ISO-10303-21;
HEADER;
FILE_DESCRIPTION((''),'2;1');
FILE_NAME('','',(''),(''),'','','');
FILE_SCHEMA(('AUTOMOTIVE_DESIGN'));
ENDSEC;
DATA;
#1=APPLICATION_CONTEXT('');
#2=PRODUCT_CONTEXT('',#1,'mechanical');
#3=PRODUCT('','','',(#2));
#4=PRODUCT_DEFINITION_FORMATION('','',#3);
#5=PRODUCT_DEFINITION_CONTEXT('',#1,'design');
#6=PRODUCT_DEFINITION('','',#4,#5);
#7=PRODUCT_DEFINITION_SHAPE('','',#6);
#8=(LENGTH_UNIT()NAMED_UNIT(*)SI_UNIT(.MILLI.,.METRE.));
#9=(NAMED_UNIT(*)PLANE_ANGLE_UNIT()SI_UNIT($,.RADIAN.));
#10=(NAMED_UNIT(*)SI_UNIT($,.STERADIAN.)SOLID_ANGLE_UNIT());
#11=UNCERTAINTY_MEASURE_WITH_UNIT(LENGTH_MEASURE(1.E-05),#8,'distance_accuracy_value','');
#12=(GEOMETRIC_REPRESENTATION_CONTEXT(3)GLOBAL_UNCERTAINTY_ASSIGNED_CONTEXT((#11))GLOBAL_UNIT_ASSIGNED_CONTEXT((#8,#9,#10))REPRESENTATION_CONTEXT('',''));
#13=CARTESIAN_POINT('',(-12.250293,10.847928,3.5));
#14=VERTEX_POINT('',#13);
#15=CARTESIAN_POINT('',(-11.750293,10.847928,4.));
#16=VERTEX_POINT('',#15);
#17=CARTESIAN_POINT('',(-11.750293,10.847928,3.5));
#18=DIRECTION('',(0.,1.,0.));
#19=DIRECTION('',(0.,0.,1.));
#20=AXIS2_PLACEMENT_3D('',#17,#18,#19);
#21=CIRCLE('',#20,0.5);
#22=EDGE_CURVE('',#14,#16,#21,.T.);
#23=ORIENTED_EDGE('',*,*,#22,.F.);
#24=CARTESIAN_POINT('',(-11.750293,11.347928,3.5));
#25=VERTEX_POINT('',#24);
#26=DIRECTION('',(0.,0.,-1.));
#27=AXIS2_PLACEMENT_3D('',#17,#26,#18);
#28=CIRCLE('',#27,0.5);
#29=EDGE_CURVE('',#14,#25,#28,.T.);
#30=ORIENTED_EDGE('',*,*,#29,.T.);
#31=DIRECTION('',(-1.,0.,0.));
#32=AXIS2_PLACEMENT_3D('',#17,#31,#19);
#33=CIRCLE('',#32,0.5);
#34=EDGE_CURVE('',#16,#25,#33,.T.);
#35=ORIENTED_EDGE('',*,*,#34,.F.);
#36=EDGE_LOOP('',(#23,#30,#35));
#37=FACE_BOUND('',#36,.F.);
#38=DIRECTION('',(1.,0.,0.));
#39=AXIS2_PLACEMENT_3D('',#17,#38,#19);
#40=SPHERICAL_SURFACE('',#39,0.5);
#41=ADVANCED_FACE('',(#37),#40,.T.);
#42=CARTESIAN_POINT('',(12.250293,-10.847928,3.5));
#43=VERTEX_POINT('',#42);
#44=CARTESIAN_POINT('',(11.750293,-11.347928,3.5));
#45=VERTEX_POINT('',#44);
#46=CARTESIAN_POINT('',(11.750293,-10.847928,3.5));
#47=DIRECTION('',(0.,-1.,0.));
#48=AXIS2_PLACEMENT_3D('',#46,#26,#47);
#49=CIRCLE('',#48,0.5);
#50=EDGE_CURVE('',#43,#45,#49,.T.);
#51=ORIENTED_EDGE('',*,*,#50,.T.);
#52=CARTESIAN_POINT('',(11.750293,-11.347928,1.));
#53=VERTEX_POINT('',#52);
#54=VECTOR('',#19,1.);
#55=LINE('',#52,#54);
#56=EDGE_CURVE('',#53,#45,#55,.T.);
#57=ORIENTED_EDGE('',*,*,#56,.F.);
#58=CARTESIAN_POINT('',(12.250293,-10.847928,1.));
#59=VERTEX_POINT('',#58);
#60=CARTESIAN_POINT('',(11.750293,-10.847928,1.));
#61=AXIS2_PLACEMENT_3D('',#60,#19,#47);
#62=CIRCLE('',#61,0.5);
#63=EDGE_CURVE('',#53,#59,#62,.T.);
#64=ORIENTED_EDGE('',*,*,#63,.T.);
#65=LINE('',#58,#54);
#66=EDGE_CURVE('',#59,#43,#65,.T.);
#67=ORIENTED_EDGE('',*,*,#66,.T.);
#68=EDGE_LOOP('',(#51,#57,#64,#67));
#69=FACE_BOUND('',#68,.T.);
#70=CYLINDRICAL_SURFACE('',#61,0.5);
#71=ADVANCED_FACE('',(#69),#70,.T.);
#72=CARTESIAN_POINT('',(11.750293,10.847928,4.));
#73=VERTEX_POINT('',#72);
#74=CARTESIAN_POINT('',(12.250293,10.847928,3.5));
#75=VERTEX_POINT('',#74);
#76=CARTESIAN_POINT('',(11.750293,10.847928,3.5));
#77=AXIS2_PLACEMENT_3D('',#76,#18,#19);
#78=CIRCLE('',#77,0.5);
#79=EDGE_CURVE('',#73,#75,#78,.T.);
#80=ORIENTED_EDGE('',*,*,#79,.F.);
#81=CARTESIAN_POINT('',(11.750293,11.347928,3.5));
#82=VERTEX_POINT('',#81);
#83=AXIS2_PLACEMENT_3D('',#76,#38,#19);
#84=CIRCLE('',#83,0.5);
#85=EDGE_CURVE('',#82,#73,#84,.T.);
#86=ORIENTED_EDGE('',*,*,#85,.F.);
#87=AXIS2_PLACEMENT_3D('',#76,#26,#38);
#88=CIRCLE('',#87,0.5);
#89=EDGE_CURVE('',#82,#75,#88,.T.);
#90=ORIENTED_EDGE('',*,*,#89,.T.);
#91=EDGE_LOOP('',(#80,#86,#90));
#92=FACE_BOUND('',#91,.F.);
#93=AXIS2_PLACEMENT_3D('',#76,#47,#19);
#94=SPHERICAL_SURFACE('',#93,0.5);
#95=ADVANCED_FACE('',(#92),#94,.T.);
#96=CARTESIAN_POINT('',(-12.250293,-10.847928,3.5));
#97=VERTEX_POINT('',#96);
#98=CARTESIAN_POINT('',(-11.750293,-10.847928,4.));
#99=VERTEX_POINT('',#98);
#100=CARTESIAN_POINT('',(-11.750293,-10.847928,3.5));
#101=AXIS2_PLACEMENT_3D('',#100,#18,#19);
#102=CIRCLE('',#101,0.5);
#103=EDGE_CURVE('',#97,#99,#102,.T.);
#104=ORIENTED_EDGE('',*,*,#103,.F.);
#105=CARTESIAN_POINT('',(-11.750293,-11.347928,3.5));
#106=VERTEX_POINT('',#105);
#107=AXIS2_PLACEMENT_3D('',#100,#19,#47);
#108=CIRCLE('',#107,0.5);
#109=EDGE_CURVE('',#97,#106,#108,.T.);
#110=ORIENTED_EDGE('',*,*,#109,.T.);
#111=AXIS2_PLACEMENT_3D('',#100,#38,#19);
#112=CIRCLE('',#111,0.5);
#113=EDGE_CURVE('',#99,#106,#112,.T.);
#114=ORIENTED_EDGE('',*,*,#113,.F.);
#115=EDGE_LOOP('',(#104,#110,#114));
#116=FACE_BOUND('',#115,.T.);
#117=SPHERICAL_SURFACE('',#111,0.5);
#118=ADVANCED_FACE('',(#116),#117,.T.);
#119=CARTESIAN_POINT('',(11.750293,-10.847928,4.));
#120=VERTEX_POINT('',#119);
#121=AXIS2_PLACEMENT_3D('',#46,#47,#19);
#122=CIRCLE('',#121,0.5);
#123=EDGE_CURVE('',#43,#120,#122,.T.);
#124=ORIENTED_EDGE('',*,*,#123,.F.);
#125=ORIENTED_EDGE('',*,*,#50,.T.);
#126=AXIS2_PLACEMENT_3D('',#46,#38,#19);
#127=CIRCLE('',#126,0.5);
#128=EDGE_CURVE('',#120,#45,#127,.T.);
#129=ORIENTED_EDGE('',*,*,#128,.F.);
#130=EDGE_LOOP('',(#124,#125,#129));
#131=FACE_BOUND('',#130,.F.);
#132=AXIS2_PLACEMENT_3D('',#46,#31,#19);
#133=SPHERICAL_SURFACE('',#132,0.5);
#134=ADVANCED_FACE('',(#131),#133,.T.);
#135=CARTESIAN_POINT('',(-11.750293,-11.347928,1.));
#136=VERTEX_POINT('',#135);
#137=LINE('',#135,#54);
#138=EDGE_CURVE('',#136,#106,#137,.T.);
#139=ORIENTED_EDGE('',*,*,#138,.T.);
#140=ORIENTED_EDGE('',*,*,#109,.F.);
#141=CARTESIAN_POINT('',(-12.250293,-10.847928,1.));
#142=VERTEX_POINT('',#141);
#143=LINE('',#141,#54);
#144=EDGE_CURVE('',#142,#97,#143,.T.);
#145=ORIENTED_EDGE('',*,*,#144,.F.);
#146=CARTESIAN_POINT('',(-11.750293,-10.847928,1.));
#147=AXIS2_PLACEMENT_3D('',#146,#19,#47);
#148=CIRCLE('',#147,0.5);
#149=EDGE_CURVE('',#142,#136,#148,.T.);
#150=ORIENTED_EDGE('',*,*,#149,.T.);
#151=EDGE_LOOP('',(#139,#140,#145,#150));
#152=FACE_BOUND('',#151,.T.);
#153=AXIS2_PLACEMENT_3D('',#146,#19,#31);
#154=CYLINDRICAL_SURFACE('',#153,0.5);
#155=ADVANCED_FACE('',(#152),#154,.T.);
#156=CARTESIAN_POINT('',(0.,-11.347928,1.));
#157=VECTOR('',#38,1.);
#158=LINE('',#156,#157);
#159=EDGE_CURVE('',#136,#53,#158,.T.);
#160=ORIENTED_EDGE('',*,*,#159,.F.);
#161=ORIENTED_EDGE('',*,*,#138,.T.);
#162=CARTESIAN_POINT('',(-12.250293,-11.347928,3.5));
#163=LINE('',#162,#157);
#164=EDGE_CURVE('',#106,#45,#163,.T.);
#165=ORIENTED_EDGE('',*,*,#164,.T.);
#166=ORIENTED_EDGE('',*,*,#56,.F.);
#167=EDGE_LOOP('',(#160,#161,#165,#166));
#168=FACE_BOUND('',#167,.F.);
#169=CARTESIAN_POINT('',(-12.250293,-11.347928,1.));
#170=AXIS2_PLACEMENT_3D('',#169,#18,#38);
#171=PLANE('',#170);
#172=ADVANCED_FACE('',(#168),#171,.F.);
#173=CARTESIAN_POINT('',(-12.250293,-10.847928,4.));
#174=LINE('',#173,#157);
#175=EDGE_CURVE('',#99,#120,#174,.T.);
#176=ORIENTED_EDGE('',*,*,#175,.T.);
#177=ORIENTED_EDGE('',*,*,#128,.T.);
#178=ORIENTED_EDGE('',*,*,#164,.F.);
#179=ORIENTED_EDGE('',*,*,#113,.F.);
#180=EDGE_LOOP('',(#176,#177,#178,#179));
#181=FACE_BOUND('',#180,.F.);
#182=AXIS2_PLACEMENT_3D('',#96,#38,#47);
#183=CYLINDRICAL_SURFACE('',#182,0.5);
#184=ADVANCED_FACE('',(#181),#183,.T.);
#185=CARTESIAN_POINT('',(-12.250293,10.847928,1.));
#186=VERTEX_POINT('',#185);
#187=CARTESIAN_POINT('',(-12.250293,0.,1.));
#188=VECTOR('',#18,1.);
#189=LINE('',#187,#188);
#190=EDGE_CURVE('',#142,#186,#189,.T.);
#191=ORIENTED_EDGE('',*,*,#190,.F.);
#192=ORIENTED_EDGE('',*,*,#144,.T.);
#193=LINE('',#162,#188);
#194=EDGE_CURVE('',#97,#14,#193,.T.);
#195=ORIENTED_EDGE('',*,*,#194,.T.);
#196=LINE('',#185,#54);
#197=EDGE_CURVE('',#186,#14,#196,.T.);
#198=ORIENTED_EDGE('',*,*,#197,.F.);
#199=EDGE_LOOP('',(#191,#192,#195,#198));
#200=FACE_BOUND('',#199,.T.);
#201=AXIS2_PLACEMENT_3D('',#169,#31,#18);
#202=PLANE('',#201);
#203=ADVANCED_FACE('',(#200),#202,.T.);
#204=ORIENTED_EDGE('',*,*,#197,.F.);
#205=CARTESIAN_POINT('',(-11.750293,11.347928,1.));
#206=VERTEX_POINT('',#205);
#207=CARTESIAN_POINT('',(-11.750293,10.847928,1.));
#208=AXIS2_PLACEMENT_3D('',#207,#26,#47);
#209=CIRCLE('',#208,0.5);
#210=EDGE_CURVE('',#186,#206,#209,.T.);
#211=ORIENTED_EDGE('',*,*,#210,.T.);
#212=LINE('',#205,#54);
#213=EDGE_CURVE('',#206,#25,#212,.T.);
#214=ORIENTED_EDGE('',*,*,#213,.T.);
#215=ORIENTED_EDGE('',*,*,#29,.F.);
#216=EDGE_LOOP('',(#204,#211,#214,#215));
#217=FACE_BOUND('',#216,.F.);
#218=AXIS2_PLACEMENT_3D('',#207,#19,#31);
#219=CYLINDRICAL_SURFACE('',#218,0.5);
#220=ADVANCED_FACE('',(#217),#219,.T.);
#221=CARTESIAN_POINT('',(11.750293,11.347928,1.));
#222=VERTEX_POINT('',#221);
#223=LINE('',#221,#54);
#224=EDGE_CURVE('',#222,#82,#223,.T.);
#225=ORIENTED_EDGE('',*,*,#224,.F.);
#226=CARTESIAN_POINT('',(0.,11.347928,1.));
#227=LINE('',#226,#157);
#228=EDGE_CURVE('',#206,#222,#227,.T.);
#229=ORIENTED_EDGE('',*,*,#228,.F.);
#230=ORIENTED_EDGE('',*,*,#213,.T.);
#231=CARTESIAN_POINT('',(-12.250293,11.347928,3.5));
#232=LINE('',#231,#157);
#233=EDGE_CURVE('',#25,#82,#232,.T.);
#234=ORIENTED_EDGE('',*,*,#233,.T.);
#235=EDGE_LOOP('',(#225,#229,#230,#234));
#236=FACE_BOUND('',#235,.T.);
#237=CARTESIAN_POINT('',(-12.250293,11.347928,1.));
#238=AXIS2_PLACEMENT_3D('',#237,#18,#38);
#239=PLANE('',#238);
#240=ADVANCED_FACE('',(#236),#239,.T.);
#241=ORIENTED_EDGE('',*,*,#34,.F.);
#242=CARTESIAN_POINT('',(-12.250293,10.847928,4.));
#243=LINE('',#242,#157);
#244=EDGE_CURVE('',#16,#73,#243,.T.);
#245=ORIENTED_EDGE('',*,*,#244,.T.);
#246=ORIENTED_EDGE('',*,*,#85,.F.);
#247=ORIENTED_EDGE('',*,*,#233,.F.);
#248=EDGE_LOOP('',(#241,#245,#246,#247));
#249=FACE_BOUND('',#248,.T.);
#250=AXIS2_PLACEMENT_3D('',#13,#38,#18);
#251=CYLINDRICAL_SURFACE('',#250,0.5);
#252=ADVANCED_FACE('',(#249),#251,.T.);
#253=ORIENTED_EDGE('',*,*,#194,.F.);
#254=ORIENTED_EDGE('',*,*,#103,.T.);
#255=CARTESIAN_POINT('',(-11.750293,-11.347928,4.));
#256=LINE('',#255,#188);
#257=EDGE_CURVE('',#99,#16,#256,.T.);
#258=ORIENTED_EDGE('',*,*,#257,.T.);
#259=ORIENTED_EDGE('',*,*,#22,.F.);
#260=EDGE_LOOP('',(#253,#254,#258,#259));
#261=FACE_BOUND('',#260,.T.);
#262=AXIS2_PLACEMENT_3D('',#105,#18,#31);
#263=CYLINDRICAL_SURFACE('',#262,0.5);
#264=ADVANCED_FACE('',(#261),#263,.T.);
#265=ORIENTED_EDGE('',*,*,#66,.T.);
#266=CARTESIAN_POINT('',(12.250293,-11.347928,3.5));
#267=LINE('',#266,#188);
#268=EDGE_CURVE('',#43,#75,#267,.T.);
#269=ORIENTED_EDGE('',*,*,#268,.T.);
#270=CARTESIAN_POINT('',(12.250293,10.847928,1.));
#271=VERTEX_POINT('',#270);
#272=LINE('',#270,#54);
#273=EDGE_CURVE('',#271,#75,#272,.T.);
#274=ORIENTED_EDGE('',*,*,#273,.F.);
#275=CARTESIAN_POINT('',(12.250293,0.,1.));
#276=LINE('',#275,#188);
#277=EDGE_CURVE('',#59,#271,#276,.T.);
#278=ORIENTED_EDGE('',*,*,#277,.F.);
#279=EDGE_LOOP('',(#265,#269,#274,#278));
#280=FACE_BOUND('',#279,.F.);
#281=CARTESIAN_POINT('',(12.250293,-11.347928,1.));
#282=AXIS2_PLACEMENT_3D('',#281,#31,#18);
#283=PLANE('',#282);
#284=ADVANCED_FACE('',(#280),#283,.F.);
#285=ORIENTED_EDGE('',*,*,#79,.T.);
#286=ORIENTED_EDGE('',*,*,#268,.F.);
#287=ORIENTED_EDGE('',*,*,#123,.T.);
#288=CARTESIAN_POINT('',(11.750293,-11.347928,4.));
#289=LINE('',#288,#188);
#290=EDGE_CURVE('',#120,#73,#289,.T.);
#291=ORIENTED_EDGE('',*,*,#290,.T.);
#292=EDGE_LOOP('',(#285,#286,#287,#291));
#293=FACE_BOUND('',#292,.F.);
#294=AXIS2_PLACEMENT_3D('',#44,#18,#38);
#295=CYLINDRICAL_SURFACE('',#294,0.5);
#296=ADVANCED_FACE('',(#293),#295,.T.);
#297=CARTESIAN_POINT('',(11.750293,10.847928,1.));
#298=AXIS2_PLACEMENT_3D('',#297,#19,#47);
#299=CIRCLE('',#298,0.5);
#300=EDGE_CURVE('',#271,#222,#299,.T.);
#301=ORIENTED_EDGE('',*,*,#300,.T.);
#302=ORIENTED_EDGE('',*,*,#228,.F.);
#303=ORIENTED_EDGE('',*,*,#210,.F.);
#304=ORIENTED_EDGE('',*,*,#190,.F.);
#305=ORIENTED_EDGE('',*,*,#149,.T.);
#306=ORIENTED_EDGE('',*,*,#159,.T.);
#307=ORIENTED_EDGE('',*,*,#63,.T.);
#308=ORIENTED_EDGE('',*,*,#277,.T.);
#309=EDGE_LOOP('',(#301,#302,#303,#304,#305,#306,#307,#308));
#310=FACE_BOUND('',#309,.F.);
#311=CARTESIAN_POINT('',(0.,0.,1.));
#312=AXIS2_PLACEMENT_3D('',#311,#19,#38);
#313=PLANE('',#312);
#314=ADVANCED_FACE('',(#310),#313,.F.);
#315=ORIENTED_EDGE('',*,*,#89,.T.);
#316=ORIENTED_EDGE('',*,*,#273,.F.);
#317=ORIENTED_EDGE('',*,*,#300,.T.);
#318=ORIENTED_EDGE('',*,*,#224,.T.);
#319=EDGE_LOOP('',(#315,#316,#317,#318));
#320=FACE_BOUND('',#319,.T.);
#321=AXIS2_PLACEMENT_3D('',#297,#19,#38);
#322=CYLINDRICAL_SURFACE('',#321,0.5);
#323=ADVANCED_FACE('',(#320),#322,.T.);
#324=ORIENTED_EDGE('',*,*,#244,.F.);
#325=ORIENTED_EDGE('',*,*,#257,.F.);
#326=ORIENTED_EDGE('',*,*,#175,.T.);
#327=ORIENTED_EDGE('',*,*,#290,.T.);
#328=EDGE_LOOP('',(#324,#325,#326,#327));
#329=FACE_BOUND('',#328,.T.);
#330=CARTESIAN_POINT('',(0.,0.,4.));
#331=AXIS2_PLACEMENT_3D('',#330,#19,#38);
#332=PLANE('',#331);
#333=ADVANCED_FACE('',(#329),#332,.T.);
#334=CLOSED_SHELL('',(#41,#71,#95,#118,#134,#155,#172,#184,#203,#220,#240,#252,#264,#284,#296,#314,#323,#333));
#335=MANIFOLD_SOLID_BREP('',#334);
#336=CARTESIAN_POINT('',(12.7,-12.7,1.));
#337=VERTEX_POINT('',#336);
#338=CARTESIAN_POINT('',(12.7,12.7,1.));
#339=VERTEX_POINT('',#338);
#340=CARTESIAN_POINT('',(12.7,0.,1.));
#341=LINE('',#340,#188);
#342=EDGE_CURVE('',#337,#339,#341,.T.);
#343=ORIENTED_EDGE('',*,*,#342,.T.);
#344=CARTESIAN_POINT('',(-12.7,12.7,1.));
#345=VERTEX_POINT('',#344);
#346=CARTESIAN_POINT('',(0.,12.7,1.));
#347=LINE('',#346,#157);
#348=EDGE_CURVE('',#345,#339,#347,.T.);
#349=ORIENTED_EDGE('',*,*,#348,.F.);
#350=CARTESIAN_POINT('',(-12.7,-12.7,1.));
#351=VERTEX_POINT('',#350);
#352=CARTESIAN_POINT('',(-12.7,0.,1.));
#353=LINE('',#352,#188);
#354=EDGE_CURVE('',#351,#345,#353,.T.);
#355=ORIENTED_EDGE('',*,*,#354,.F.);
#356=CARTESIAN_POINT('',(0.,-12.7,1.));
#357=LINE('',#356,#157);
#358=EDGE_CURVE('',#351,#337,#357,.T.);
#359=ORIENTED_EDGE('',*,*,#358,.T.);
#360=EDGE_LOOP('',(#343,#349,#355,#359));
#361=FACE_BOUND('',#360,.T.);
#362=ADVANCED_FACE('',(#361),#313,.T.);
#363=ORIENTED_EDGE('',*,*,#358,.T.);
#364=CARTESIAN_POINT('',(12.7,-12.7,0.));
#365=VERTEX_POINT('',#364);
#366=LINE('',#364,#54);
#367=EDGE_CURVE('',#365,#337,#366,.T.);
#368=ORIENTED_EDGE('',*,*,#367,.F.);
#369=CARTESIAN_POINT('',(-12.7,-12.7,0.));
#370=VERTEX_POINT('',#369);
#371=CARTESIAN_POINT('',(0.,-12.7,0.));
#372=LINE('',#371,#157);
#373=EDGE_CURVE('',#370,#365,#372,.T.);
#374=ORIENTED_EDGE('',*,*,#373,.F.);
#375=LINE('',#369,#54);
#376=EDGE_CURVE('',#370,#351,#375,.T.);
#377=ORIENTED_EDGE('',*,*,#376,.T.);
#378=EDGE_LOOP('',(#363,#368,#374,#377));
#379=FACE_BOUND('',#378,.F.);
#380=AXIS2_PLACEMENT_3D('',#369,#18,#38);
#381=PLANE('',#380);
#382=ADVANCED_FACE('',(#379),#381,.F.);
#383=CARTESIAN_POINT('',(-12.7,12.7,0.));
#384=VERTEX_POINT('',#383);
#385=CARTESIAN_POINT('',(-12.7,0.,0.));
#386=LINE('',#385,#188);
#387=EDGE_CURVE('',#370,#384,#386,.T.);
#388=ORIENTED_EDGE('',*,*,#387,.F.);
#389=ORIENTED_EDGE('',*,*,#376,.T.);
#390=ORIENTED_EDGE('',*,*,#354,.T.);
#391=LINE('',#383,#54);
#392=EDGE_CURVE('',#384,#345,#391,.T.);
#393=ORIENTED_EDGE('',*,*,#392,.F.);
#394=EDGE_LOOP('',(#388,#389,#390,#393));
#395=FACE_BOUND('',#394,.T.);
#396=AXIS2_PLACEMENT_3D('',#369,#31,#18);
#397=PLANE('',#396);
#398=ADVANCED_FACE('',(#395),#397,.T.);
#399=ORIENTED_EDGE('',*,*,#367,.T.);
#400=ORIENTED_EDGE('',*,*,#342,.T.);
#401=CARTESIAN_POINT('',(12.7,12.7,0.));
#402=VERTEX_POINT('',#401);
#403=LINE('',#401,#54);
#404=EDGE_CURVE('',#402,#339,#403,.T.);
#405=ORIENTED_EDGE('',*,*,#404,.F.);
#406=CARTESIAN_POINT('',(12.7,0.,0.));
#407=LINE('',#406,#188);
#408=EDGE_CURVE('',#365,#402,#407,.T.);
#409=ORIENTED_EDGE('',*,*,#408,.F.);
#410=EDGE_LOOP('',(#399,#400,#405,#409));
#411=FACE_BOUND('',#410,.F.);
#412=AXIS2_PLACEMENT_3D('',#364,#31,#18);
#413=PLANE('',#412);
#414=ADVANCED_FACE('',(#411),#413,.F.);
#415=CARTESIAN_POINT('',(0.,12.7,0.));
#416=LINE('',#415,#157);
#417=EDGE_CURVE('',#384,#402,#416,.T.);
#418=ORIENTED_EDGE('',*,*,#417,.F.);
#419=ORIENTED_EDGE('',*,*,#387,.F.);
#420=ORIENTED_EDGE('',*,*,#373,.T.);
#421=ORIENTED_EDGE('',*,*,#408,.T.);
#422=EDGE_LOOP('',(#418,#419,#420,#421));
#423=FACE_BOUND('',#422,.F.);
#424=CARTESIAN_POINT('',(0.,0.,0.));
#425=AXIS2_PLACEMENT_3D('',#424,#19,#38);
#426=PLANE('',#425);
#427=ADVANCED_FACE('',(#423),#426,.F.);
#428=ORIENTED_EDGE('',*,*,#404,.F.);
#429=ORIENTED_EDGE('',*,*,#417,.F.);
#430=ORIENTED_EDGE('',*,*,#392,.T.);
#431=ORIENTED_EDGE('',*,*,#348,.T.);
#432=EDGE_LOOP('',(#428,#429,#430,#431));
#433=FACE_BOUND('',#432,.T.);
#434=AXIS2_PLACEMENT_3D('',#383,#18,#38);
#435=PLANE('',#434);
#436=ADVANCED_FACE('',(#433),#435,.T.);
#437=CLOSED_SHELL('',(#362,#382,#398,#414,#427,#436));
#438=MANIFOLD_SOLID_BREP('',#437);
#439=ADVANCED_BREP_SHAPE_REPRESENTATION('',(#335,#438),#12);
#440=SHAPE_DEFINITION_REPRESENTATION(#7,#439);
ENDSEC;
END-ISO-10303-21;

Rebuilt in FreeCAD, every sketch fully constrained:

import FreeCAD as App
import Part
import Sketcher


def edges_at(feature, points):
    """Names of the edges that pass closest to the given points."""
    edges = feature.Shape.Edges
    near = lambda p: min(range(len(edges)), key=lambda i: edges[i].distToShape(Part.Vertex(*p))[0])
    return sorted({f"Edge{near(p) + 1}" for p in points})

doc = App.newDocument("Part")
body = doc.addObject("PartDesign::Body", "Body")

sketch1 = body.newObject("Sketcher::SketchObject", "Sketch")
sketch1.AttachmentSupport = (doc.getObject("XY_Plane"), [""])
sketch1.MapMode = "FlatFace"
sketch1.addGeometry([
    Part.LineSegment(App.Vector(-13, 13, 0), App.Vector(-13, -13, 0)),
    Part.LineSegment(App.Vector(-13, -13, 0), App.Vector(13, -13, 0)),
    Part.LineSegment(App.Vector(13, -13, 0), App.Vector(13, 13, 0)),
    Part.LineSegment(App.Vector(13, 13, 0), App.Vector(-13, 13, 0)),
], False)
sketch1.addConstraint([
    Sketcher.Constraint("Coincident", 0, 2, 1, 1),
    Sketcher.Constraint("Coincident", 1, 2, 2, 1),
    Sketcher.Constraint("Coincident", 2, 2, 3, 1),
    Sketcher.Constraint("Coincident", 3, 2, 0, 1),
    Sketcher.Constraint("Vertical", 0),
    Sketcher.Constraint("Horizontal", 1),
    Sketcher.Constraint("Vertical", 2),
    Sketcher.Constraint("Horizontal", 3),
    Sketcher.Constraint("Symmetric", 0, 2, 2, 2, -1, 1),
    Sketcher.Constraint("Equal", 3, 0),
    Sketcher.Constraint("DistanceX", 1, 1, 1, 2, 25.4),
])
pad1 = body.newObject("PartDesign::Pad", "Pad")
pad1.Profile = sketch1
pad1.Length = 1
body2 = doc.addObject("PartDesign::Body", "Body001")

sketch2 = body2.newObject("Sketcher::SketchObject", "Sketch001")
sketch2.AttachmentSupport = (doc.getObject("XY_Plane001"), [""])
sketch2.MapMode = "FlatFace"
sketch2.AttachmentOffset = App.Placement(App.Vector(0, 0, 1), App.Rotation())
sketch2.addGeometry([
    Part.LineSegment(App.Vector(-12, 11, 0), App.Vector(-12, -11, 0)),
    Part.LineSegment(App.Vector(-12, -11, 0), App.Vector(12, -11, 0)),
    Part.LineSegment(App.Vector(12, -11, 0), App.Vector(12, 11, 0)),
    Part.LineSegment(App.Vector(12, 11, 0), App.Vector(-12, 11, 0)),
], False)
sketch2.addConstraint([
    Sketcher.Constraint("Coincident", 0, 2, 1, 1),
    Sketcher.Constraint("Coincident", 1, 2, 2, 1),
    Sketcher.Constraint("Coincident", 2, 2, 3, 1),
    Sketcher.Constraint("Coincident", 3, 2, 0, 1),
    Sketcher.Constraint("Vertical", 0),
    Sketcher.Constraint("Horizontal", 1),
    Sketcher.Constraint("Vertical", 2),
    Sketcher.Constraint("Horizontal", 3),
    Sketcher.Constraint("Symmetric", 0, 2, 2, 2, -1, 1),
    Sketcher.Constraint("DistanceX", 1, 1, 1, 2, 24.500586),
    Sketcher.Constraint("DistanceY", 0, 2, 0, 1, 22.695856),
])
pad2 = body2.newObject("PartDesign::Pad", "Pad001")
pad2.Profile = sketch2
pad2.Length = 3
doc.recompute()

fillet = body2.newObject("PartDesign::Fillet", "Fillet")
fillet.Base = (pad2, edges_at(pad2, [
    (0, -11.348, 4),
    (12.25, 0, 4),
    (0, 11.348, 4),
    (-12.25, 0, 4),
    (12.25, -11.348, 2.5),
    (-12.25, -11.348, 2.5),
    (-12.25, 11.348, 2.5),
    (12.25, 11.348, 2.5),
]))
fillet.Radius = 0.5

doc.recompute()
